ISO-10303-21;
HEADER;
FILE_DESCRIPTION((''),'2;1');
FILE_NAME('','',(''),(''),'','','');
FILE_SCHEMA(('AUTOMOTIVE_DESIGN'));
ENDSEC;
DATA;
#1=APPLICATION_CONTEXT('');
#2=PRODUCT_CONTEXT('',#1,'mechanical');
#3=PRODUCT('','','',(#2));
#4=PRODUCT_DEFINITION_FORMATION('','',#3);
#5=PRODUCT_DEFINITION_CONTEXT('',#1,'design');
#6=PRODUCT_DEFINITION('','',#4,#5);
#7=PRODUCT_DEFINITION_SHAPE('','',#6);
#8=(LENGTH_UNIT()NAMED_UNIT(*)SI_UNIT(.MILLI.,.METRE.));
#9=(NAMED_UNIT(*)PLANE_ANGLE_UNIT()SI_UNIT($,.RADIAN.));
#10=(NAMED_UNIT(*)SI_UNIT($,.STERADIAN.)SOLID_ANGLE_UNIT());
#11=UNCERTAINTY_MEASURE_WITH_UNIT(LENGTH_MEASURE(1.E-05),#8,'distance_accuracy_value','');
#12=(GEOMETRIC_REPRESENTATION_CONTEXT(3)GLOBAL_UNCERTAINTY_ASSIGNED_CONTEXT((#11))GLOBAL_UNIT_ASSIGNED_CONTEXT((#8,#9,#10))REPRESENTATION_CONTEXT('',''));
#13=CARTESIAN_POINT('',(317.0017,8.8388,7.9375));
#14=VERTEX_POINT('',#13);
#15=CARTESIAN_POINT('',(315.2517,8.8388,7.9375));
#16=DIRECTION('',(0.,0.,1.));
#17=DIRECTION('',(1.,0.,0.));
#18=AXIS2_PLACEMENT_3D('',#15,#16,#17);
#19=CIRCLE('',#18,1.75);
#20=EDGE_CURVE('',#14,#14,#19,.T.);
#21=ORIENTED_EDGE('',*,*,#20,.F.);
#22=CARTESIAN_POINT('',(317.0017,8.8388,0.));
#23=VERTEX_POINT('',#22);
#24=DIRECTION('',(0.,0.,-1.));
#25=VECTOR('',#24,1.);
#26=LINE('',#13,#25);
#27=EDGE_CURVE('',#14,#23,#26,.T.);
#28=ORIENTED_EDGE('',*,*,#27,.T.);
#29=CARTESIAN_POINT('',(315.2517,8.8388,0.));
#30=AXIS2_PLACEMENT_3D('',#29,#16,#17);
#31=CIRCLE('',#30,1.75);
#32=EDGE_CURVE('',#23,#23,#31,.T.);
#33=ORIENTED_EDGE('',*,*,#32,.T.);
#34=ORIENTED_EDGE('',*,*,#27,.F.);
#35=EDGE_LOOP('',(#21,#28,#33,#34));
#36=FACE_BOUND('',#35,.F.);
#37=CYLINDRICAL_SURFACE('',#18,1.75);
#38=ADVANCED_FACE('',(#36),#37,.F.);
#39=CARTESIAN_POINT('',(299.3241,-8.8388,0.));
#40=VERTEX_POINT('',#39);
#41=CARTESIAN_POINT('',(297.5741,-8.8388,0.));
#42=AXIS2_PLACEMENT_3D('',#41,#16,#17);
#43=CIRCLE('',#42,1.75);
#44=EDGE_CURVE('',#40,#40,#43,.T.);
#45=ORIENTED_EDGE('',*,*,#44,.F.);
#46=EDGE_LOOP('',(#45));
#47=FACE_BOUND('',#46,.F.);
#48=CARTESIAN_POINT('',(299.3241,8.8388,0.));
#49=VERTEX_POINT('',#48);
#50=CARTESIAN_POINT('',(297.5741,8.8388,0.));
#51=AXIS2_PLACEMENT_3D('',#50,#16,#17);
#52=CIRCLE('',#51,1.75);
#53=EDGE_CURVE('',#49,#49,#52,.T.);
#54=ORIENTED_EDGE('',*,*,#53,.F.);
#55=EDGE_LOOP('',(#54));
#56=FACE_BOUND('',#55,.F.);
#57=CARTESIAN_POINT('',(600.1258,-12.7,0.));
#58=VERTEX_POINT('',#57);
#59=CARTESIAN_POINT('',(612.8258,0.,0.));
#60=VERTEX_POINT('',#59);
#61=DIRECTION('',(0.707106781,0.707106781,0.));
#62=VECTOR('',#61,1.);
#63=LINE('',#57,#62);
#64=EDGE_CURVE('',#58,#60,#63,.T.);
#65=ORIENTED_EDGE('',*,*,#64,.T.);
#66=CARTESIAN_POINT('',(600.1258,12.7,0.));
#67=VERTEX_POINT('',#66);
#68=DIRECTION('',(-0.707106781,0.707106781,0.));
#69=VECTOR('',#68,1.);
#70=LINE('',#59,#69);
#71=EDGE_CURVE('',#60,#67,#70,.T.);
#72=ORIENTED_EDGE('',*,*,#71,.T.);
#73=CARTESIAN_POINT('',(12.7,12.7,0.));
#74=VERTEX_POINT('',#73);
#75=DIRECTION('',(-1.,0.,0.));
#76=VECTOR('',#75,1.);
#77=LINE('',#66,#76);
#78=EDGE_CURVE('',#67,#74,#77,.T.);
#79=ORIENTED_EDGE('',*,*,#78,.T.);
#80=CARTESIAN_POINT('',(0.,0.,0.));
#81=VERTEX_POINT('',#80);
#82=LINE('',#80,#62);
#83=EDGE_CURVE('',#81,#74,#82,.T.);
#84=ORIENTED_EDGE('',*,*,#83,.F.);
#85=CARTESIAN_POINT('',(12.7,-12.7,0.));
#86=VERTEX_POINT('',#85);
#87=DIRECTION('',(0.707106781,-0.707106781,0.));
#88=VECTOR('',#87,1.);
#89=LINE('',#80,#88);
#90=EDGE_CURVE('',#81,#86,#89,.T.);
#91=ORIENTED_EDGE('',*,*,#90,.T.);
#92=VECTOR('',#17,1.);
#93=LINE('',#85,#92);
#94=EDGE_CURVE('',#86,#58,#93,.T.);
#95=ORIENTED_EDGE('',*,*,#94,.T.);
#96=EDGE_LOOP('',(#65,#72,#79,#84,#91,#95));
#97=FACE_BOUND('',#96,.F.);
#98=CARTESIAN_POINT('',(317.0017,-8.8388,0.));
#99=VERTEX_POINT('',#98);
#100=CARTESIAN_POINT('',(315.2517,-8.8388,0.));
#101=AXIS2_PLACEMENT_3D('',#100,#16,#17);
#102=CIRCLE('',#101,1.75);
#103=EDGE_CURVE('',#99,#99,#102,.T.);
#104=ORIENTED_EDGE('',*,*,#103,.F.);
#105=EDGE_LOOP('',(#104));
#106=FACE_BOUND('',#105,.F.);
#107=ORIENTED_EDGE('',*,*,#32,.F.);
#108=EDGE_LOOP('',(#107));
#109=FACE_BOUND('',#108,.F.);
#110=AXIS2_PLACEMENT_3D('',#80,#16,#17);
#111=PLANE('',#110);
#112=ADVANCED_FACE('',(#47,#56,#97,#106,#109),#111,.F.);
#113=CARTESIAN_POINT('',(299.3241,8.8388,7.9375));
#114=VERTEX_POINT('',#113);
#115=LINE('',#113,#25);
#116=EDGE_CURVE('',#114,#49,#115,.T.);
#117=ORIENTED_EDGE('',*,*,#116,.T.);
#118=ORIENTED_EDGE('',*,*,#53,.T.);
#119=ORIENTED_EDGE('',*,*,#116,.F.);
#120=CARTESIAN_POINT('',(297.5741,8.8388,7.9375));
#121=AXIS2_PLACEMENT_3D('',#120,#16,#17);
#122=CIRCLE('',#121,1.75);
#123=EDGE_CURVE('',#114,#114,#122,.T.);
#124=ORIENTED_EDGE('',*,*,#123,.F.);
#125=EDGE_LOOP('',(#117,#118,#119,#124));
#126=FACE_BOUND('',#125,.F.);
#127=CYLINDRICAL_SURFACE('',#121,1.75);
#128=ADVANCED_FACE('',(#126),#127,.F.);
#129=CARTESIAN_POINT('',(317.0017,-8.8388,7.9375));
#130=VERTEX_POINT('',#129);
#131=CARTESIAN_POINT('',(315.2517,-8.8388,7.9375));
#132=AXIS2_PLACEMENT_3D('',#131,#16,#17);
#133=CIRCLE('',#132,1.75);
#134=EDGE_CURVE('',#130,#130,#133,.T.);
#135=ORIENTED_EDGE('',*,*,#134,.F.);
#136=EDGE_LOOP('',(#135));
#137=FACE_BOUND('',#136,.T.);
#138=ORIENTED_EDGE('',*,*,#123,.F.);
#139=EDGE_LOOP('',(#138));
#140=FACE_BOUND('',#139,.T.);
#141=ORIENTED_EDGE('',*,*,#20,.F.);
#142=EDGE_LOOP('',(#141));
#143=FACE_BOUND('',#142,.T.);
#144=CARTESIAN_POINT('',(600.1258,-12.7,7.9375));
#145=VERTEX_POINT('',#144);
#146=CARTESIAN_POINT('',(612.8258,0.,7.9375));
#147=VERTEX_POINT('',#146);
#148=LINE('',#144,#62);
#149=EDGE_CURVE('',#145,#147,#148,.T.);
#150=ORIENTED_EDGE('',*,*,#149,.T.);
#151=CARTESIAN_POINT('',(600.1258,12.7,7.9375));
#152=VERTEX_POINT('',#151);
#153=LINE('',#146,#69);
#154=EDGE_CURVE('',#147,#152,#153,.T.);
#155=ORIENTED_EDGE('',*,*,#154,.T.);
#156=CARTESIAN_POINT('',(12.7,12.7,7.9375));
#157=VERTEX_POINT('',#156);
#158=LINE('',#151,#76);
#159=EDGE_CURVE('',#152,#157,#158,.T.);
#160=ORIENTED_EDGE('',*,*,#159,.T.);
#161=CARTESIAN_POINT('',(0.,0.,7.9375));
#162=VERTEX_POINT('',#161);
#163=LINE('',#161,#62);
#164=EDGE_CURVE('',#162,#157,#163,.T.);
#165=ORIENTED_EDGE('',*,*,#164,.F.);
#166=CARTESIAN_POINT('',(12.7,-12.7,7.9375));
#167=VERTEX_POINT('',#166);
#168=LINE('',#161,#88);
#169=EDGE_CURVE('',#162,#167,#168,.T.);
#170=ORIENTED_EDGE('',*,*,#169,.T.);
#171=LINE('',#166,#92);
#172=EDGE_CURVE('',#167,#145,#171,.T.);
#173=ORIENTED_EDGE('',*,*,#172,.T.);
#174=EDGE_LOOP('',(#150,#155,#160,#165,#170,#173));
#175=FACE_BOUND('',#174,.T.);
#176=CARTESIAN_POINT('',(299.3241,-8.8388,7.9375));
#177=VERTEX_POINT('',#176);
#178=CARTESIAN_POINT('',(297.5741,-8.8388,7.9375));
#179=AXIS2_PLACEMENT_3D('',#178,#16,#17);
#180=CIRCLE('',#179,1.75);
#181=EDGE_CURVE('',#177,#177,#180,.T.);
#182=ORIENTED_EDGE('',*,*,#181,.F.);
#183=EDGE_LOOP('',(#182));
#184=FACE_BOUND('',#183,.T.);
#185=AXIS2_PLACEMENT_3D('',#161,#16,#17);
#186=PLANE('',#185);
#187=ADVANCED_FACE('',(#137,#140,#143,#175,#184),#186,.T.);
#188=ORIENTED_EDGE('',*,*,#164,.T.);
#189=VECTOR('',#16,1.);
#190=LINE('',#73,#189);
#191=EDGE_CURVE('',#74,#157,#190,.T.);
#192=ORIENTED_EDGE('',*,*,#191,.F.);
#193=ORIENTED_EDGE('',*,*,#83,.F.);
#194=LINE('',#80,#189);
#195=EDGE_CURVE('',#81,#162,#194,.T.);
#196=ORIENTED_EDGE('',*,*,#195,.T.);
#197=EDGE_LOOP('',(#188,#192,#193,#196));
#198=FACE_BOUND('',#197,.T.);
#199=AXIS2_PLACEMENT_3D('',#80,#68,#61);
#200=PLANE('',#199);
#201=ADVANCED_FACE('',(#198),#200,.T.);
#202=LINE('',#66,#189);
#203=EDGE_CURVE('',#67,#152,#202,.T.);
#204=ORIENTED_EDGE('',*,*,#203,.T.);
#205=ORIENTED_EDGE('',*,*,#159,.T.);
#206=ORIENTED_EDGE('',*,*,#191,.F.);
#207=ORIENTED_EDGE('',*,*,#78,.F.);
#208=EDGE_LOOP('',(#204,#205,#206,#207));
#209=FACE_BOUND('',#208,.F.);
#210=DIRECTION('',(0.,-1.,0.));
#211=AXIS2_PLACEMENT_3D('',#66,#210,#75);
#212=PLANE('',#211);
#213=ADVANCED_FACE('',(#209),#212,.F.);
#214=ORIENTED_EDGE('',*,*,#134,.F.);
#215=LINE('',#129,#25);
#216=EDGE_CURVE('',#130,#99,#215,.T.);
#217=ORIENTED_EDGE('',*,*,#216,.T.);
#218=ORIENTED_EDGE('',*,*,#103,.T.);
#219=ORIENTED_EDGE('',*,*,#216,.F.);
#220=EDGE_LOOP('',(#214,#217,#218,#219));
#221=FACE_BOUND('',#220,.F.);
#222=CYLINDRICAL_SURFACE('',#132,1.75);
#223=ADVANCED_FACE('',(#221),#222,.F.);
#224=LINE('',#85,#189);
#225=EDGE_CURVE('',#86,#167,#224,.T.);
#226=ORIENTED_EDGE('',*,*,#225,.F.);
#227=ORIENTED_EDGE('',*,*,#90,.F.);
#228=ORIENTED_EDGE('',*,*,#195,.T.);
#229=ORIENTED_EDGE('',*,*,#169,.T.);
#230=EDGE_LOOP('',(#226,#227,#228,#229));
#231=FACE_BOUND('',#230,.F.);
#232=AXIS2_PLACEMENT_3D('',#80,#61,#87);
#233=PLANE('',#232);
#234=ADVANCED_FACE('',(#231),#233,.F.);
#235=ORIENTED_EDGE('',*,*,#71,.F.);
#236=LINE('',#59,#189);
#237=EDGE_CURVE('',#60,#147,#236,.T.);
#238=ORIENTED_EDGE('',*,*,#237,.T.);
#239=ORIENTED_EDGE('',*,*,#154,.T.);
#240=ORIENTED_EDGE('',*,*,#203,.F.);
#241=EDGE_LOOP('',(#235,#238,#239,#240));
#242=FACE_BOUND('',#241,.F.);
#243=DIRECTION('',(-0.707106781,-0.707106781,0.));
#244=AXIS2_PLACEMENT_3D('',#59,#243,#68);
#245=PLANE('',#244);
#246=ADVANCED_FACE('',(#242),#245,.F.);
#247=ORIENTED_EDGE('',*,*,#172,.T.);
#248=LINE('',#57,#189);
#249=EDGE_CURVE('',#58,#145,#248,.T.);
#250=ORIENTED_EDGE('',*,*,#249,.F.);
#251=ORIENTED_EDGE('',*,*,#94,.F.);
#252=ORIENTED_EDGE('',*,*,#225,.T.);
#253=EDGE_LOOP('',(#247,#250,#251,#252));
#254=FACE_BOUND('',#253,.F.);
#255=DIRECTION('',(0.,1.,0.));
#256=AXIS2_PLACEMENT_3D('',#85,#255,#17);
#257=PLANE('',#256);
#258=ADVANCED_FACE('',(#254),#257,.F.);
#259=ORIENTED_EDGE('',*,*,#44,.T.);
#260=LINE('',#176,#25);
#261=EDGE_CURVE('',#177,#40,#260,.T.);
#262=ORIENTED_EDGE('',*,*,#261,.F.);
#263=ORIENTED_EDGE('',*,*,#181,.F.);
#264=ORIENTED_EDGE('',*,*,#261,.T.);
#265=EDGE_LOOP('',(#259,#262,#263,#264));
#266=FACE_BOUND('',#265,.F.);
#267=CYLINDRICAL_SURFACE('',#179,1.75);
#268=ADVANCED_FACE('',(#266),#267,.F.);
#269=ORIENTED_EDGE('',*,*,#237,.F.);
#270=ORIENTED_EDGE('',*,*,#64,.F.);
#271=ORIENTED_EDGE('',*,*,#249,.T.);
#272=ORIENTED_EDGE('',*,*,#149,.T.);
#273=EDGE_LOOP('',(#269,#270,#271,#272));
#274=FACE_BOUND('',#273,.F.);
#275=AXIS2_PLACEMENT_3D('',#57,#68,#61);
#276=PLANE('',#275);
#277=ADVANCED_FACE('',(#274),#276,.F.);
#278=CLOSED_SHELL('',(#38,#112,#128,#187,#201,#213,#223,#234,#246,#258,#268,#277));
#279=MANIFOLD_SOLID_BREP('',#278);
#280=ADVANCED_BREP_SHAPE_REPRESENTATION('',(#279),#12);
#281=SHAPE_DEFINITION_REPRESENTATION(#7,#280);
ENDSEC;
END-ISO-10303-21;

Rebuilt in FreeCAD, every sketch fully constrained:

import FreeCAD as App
import Part
import Sketcher
from FreeCAD import Vector
Q = App.Units.Quantity


def add_polygon(sketch, points):
    """Adds a closed chain of lines whose ends are joined by coincident constraints."""
    first, n = sketch.GeometryCount, len(points)
    for a, b in zip(points, points[1:] + points[:1]):
        sketch.addGeometry(Part.LineSegment(App.Vector(*a, 0), App.Vector(*b, 0)), False)
    for i in range(n):
        sketch.addConstraint(Sketcher.Constraint("Coincident", first + i, 2, first + (i + 1) % n, 1))

doc = App.newDocument("Part")
body = doc.addObject("PartDesign::Body", "Body")

sketch1 = body.newObject("Sketcher::SketchObject", "Sketch")
sketch1.AttachmentSupport = (doc.getObject("XY_Plane"), [""])
sketch1.MapMode = "FlatFace"
add_polygon(sketch1, [(13, 13), (0, 0), (13, -13), (600, -13), (613, 0), (600, 13)])
sketch1.addConstraint([
    Sketcher.Constraint("Horizontal", 2),
    Sketcher.Constraint("Horizontal", 5),
    Sketcher.Constraint("Coincident", 0, 2, -1, 1),
    Sketcher.Constraint("Symmetric", 2, 2, 4, 2, -1),
    Sketcher.Constraint("PointOnObject", 3, 2, -1),
    Sketcher.Constraint("Perpendicular", 0, 1),
    Sketcher.Constraint("Perpendicular", 1, 3),
    Sketcher.Constraint("Perpendicular", 3, 4),
    Sketcher.Constraint("DistanceY", 2, 2, 4, 2, Q("1 in")),
    Sketcher.Constraint("DistanceX", -1, 1, 3, 2, Q("24.127 in")),
])
pad1 = body.newObject("PartDesign::Pad", "Pad")
pad1.Profile = sketch1
pad1.Length = Q("0.3125 in")

sketch2 = body.newObject("Sketcher::SketchObject", "Sketch001")
sketch2.AttachmentSupport = (doc.getObject("XY_Plane"), [""])
sketch2.MapMode = "FlatFace"
sketch2.AttachmentOffset = App.Placement(Vector(0, 0, 0.3125 * 25.4), App.Rotation())
sketch2.addGeometry([
    Part.Circle(Vector(297.6, 8.8, 0), Vector(0, 0, 1), 1.8),
    Part.Circle(Vector(315.3, 8.8, 0), Vector(0, 0, 1), 1.8),
    Part.Circle(Vector(315.3, -8.8, 0), Vector(0, 0, 1), 1.8),
    Part.Circle(Vector(297.6, -8.8, 0), Vector(0, 0, 1), 1.8),
], False)
sketch2.addConstraint([
    Sketcher.Constraint("Equal", 0, 1),
    Sketcher.Constraint("Equal", 1, 2),
    Sketcher.Constraint("Equal", 2, 3),
    Sketcher.Constraint("Symmetric", 1, 3, 2, 3, -1),
    Sketcher.Constraint("Symmetric", 0, 3, 3, 3, -1),
    Sketcher.Constraint("Horizontal", 0, 3, 1, 3),
    Sketcher.Constraint("Diameter", 0, Q("0.1378 in")),
    Sketcher.Constraint("DistanceX", -1, 1, 0, 3, Q("11.7155118 in")),
    Sketcher.Constraint("DistanceY", -1, 1, 0, 3, Q("8.8388 mm")),
    Sketcher.Constraint("DistanceX", -1, 1, 1, 3, Q("315.2517 mm")),
])
pocket1 = body.newObject("PartDesign::Pocket", "Pocket")
pocket1.Profile = sketch2
pocket1.Type = "ThroughAll"

doc.recompute()
